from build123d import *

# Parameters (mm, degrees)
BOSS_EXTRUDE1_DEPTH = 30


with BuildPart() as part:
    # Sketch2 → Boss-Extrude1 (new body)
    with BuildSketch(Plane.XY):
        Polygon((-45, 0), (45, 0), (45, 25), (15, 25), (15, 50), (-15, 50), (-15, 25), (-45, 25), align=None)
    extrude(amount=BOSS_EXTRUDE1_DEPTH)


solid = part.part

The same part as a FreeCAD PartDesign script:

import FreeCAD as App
import Part
import Sketcher

V = App.Vector

doc = App.newDocument("Part")
body = doc.addObject("PartDesign::Body", "Body")

# Sketch on XY plane
sketch1 = body.newObject("Sketcher::SketchObject", "Sketch")
sketch1.AttachmentSupport = (doc.getObject("XY_Plane"), [""])
sketch1.MapMode = "FlatFace"
sketch1.addGeometry([
    Part.LineSegment(V(-45, 0, 0), V(45, 0, 0)),  # 0
    Part.LineSegment(V(45, 0, 0), V(45, 25, 0)),  # 1
    Part.LineSegment(V(45, 25, 0), V(15, 25, 0)),  # 2
    Part.LineSegment(V(15, 25, 0), V(15, 50, 0)),  # 3
    Part.LineSegment(V(15, 50, 0), V(-15, 50, 0)),  # 4
    Part.LineSegment(V(-15, 50, 0), V(-15, 25, 0)),  # 5
    Part.LineSegment(V(-15, 25, 0), V(-45, 25, 0)),  # 6
    Part.LineSegment(V(-45, 25, 0), V(-45, 0, 0)),  # 7
], False)
sketch1.addConstraint([
    Sketcher.Constraint("Coincident", 0, 2, 1, 1),
    Sketcher.Constraint("Coincident", 1, 2, 2, 1),
    Sketcher.Constraint("Coincident", 2, 2, 3, 1),
    Sketcher.Constraint("Coincident", 3, 2, 4, 1),
    Sketcher.Constraint("Coincident", 4, 2, 5, 1),
    Sketcher.Constraint("Coincident", 5, 2, 6, 1),
    Sketcher.Constraint("Coincident", 6, 2, 7, 1),
    Sketcher.Constraint("Coincident", 7, 2, 0, 1),
    Sketcher.Constraint("Horizontal", 0),
    Sketcher.Constraint("Vertical", 1),
    Sketcher.Constraint("Horizontal", 2),
    Sketcher.Constraint("Vertical", 3),
    Sketcher.Constraint("Horizontal", 4),
    Sketcher.Constraint("Vertical", 5),
    Sketcher.Constraint("Horizontal", 6),
    Sketcher.Constraint("Vertical", 7),
    Sketcher.Constraint("Symmetric", 0, 2, 7, 2, -1, 1),
    Sketcher.Constraint("Symmetric", 2, 2, 5, 2, -2),
    Sketcher.Constraint("Equal", 2, 4),
    Sketcher.Constraint("Equal", 1, 3),
    Sketcher.Constraint("DistanceX", 0, 1, 0, 2, 90.0),
    Sketcher.Constraint("DistanceY", 1, 1, 1, 2, 25.0),
])
pad1 = body.newObject("PartDesign::Pad", "Pad")
pad1.Profile = sketch1
pad1.Length = 30

doc.recompute()
